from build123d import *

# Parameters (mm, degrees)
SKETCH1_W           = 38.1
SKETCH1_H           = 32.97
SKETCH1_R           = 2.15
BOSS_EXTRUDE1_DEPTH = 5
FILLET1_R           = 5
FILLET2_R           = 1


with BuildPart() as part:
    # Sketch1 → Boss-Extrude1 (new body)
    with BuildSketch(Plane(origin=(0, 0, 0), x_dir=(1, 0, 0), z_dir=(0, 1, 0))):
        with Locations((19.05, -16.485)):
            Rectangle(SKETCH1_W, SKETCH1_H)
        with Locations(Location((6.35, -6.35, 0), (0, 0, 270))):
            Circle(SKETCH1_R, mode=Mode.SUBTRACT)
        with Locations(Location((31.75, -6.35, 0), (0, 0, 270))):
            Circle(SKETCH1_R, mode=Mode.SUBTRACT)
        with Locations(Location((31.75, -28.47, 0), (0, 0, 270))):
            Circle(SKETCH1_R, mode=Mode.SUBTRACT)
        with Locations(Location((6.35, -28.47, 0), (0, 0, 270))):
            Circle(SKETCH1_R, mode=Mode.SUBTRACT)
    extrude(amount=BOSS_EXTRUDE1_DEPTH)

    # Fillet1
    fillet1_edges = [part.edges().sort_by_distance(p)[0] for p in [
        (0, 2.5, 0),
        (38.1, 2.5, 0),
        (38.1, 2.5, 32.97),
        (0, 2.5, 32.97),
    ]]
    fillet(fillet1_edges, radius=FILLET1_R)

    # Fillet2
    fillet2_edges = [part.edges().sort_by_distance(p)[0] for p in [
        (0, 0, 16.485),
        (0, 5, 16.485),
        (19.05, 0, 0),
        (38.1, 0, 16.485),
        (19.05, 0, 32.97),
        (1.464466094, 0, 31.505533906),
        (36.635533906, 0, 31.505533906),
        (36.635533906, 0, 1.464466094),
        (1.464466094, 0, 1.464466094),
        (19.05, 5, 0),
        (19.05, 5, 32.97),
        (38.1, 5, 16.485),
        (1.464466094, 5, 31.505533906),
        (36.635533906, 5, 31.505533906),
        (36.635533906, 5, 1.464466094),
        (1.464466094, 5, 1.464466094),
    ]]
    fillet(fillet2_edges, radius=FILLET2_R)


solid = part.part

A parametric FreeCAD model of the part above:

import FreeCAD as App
import Part
import Sketcher

V = App.Vector


def edges_at(feature, points):
    """Names of the edges that pass closest to the given points."""
    edges = feature.Shape.Edges
    near = lambda p: min(range(len(edges)), key=lambda i: edges[i].distToShape(Part.Vertex(*p))[0])
    return sorted({f"Edge{near(p) + 1}" for p in points})


def add_polygon(sketch, points):
    """Adds a closed chain of lines whose ends are joined by coincident constraints."""
    first, n = sketch.GeometryCount, len(points)
    for a, b in zip(points, points[1:] + points[:1]):
        sketch.addGeometry(Part.LineSegment(App.Vector(*a, 0), App.Vector(*b, 0)), False)
    for i in range(n):
        sketch.addConstraint(Sketcher.Constraint("Coincident", first + i, 2, first + (i + 1) % n, 1))

doc = App.newDocument("Part")
body = doc.addObject("PartDesign::Body", "Body")

# Sketch on XZ plane
sketch1 = body.newObject("Sketcher::SketchObject", "Sketch")
sketch1.AttachmentSupport = (doc.getObject("XZ_Plane"), [""])
sketch1.MapMode = "FlatFace"
add_polygon(sketch1, [(0, 0), (0, 33), (38.1, 33), (38.1, 0)])  # lines 0-3
sketch1.addGeometry(Part.Circle(V(6.3, 28.5, 0), V(0, 0, 1), 2.1), False)  # 4
sketch1.addGeometry(Part.Circle(V(31.8, 28.5, 0), V(0, 0, 1), 2.1), False)  # 5
sketch1.addGeometry(Part.Circle(V(6.3, 6.3, 0), V(0, 0, 1), 2.1), False)  # 6
sketch1.addGeometry(Part.Circle(V(31.8, 6.3, 0), V(0, 0, 1), 2.1), False)  # 7
sketch1.addConstraint([
    Sketcher.Constraint("Vertical", 0),
    Sketcher.Constraint("Horizontal", 1),
    Sketcher.Constraint("Vertical", 2),
    Sketcher.Constraint("Horizontal", 3),
    Sketcher.Constraint("Coincident", 3, 2, -1, 1),
    Sketcher.Constraint("Equal", 4, 5),
    Sketcher.Constraint("Equal", 5, 6),
    Sketcher.Constraint("Equal", 6, 7),
    Sketcher.Constraint("Horizontal", 4, 3, 5, 3),
    Sketcher.Constraint("Horizontal", 6, 3, 7, 3),
    Sketcher.Constraint("Vertical", 4, 3, 6, 3),
    Sketcher.Constraint("Vertical", 5, 3, 7, 3),
    Sketcher.Constraint("Diameter", 4, 4.3),
    Sketcher.Constraint("DistanceX", 1, 1, 1, 2, 38.1),
    Sketcher.Constraint("DistanceY", 0, 1, 0, 2, 32.97),
    Sketcher.Constraint("DistanceX", 4, 3, 5, 3, 25.4),
    Sketcher.Constraint("DistanceY", 4, 3, 0, 2, 4.5),
    Sketcher.Constraint("DistanceX", -1, 1, 4, 3, 6.35),
    Sketcher.Constraint("DistanceY", -1, 1, 6, 3, 6.35),
])
pad1 = body.newObject("PartDesign::Pad", "Pad")
pad1.Profile = sketch1
pad1.Length = 5
pad1.Reversed = True
doc.recompute()

fillet = body.newObject("PartDesign::Fillet", "Fillet")
fillet.Base = (pad1, edges_at(pad1, [
    (0, 2.5, 0),
    (38.1, 2.5, 0),
    (38.1, 2.5, 32.97),
    (0, 2.5, 32.97),
]))
fillet.Radius = 5
doc.recompute()

fillet2 = body.newObject("PartDesign::Fillet", "Fillet001")
fillet2.Base = (fillet, edges_at(fillet, [
    (0, 0, 16.485),
    (0, 5, 16.485),
    (19.05, 0, 0),
    (38.1, 0, 16.485),
    (19.05, 0, 32.97),
    (1.464, 0, 31.506),
    (36.636, 0, 31.506),
    (36.636, 0, 1.464),
    (1.464, 0, 1.464),
    (19.05, 5, 0),
    (19.05, 5, 32.97),
    (38.1, 5, 16.485),
    (1.464, 5, 31.506),
    (36.636, 5, 31.506),
    (36.636, 5, 1.464),
    (1.464, 5, 1.464),
]))
fillet2.Radius = 1

doc.recompute()
